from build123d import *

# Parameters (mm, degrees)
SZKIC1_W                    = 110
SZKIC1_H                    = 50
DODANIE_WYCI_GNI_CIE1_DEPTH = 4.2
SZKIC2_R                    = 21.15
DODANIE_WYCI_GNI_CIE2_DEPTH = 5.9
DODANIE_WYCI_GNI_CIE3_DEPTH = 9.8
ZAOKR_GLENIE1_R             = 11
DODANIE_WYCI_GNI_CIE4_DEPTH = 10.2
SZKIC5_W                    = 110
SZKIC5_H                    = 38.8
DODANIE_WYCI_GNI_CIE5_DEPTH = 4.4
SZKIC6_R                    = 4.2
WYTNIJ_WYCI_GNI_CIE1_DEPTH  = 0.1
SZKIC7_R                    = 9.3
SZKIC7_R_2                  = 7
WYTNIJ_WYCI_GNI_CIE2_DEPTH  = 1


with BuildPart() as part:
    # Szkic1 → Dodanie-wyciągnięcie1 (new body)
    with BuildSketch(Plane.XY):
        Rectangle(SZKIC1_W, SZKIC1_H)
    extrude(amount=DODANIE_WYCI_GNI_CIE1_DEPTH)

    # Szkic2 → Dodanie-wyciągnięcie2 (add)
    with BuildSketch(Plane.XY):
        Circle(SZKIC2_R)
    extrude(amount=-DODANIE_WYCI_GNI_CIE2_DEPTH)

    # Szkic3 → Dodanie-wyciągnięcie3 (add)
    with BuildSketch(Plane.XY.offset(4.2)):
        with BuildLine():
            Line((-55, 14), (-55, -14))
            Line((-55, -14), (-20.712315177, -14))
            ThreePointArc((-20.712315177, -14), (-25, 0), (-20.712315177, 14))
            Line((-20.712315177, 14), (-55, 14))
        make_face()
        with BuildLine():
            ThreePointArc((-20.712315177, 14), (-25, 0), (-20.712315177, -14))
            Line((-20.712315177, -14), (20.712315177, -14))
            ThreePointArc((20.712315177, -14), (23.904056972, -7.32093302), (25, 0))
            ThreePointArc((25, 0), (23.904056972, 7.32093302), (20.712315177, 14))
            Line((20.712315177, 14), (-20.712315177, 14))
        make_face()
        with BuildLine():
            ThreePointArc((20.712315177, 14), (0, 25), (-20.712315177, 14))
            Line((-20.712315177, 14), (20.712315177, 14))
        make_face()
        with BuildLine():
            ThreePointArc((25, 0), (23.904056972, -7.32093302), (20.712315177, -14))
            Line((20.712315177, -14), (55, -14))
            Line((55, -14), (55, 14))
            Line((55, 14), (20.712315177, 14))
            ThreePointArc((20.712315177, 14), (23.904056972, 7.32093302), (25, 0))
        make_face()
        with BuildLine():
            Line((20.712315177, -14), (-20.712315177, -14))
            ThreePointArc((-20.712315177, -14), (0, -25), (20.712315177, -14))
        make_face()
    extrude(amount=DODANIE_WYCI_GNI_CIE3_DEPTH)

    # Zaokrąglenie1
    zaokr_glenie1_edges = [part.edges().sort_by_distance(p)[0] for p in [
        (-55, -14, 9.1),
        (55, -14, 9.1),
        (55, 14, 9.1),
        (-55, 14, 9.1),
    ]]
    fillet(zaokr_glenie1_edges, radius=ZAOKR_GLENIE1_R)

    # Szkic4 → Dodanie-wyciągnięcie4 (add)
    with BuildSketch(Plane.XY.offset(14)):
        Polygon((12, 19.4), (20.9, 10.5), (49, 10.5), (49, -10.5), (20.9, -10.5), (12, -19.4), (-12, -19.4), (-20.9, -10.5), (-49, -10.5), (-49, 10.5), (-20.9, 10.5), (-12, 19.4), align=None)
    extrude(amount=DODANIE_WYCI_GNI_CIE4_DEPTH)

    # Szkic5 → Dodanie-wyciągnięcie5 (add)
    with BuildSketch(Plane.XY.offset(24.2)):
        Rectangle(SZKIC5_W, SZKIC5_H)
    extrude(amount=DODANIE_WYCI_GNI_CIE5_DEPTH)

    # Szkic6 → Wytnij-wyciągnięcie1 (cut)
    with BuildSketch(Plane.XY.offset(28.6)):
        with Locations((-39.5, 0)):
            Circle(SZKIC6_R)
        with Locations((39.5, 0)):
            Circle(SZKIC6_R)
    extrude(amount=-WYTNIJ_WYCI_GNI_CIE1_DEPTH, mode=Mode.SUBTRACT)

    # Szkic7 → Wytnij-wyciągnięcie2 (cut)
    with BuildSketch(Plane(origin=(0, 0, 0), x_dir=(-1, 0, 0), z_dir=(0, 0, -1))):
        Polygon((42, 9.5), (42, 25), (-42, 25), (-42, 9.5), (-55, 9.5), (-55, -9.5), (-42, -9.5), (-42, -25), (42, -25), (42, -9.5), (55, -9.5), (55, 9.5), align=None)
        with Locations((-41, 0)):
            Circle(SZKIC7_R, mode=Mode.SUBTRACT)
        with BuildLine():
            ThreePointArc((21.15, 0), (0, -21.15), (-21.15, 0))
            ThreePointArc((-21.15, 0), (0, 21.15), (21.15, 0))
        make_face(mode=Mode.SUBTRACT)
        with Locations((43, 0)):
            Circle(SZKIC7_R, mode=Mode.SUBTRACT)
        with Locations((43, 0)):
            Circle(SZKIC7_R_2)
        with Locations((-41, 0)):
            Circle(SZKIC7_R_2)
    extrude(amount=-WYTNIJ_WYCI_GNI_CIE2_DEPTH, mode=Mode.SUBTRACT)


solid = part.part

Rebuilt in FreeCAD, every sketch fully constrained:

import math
import FreeCAD as App
import Part
import Sketcher
Q = App.Units.Quantity


def edges_at(feature, points):
    """Names of the edges that pass closest to the given points."""
    edges = feature.Shape.Edges
    near = lambda p: min(range(len(edges)), key=lambda i: edges[i].distToShape(Part.Vertex(*p))[0])
    return sorted({f"Edge{near(p) + 1}" for p in points})

doc = App.newDocument("Part")
params = doc.addObject("Spreadsheet::Sheet", "Params")
for row, (alias, value) in enumerate([
    ("sketch1_width", "110 mm"),
    ("sketch1_height", "50 mm"),
    ("pad1_length", "4.2 mm"),
    ("sketch2_diameter", "42.3 mm"),
    ("pad2_length", "5.9 mm"),
    ("sketch3_radius", "25 mm"),
    ("sketch3_height", "28 mm"),
    ("pad3_length", "9.8 mm"),
    ("fillet_radius", "11 mm"),
    ("sketch4_width", "24 mm"),
    ("sketch4_height", "21 mm"),
    ("sketch4_width2", "28.1 mm"),
    ("pad4_length", "10.2 mm"),
    ("sketch5_width", "110 mm"),
    ("sketch5_height", "38.8 mm"),
    ("pad5_length", "4.4 mm"),
    ("sketch6_diameter", "8.4 mm"),
    ("pocket1_length", "0.1 mm"),
    ("sketch7_diameter", "14 mm"),
    ("sketch7_diameter2", "18.6 mm"),
    ("sketch7_diameter3", "42.3 mm"),
    ("sketch7_width", "84 mm"),
    ("sketch7_width2", "13 mm"),
    ("pocket2_length", "1 mm"),
], start=1):
    params.set(f"A{row}", alias)
    params.set(f"B{row}", "=" + value)
    params.setAlias(f"B{row}", alias)

body = doc.addObject("PartDesign::Body", "Body")

sketch1 = body.newObject("Sketcher::SketchObject", "Sketch")
sketch1.AttachmentSupport = (doc.getObject("XY_Plane"), [""])
sketch1.MapMode = "FlatFace"
sketch1.addGeometry(Part.LineSegment(App.Vector(-55, 25, 0), App.Vector(-55, -25, 0)), False)
sketch1.addGeometry(Part.LineSegment(App.Vector(-55, -25, 0), App.Vector(55, -25, 0)), False)
sketch1.addGeometry(Part.LineSegment(App.Vector(55, -25, 0), App.Vector(55, 25, 0)), False)
sketch1.addGeometry(Part.LineSegment(App.Vector(55, 25, 0), App.Vector(-55, 25, 0)), False)
sketch1.addConstraint(Sketcher.Constraint("Coincident", 0, 2, 1, 1))
sketch1.addConstraint(Sketcher.Constraint("Coincident", 1, 2, 2, 1))
sketch1.addConstraint(Sketcher.Constraint("Coincident", 2, 2, 3, 1))
sketch1.addConstraint(Sketcher.Constraint("Coincident", 3, 2, 0, 1))
sketch1.addConstraint(Sketcher.Constraint("Vertical", 0))
sketch1.addConstraint(Sketcher.Constraint("Horizontal", 1))
sketch1.addConstraint(Sketcher.Constraint("Vertical", 2))
sketch1.addConstraint(Sketcher.Constraint("Horizontal", 3))
sketch1.addConstraint(Sketcher.Constraint("Symmetric", 0, 2, 2, 2, -1, 1))
sketch1.addConstraint(Sketcher.Constraint("DistanceX", 1, 1, 1, 2, Q("110 mm")))
sketch1.addConstraint(Sketcher.Constraint("DistanceY", 0, 2, 0, 1, Q("50 mm")))
sketch1.setExpression("Constraints[9]", "Params.sketch1_width")
sketch1.setExpression("Constraints[10]", "Params.sketch1_height")
pad1 = body.newObject("PartDesign::Pad", "Pad")
pad1.Profile = sketch1
pad1.setExpression("Length", "Params.pad1_length")

sketch2 = body.newObject("Sketcher::SketchObject", "Sketch001")
sketch2.AttachmentSupport = (doc.getObject("XY_Plane"), [""])
sketch2.MapMode = "FlatFace"
sketch2.addGeometry(Part.Circle(App.Vector(0, 0, 0), App.Vector(0, 0, 1), 21.15), False)
sketch2.addConstraint(Sketcher.Constraint("Coincident", 0, 3, -1, 1))
sketch2.addConstraint(Sketcher.Constraint("Diameter", 0, Q("42.3 mm")))
sketch2.setExpression("Constraints[1]", "Params.sketch2_diameter")
pad2 = body.newObject("PartDesign::Pad", "Pad001")
pad2.Profile = sketch2
pad2.setExpression("Length", "Params.pad2_length")
pad2.Reversed = True

sketch3 = body.newObject("Sketcher::SketchObject", "Sketch002")
sketch3.AttachmentSupport = (doc.getObject("XY_Plane"), [""])
sketch3.MapMode = "FlatFace"
sketch3.AttachmentOffset = App.Placement(App.Vector(0, 0, 4.2), App.Rotation())
sketch3.addGeometry(Part.LineSegment(App.Vector(-55, 14, 0), App.Vector(-55, -14, 0)), False)
sketch3.addGeometry(Part.LineSegment(App.Vector(-55, -14, 0), App.Vector(-20.712315, -14, 0)), False)
sketch3.addGeometry(Part.ArcOfCircle(Part.Circle(App.Vector(0, 0, 0), App.Vector(0, 0, 1), 25), math.radians(-145.944202), math.radians(-34.055798)), False)
sketch3.addGeometry(Part.LineSegment(App.Vector(20.712315, -14, 0), App.Vector(55, -14, 0)), False)
sketch3.addGeometry(Part.LineSegment(App.Vector(55, -14, 0), App.Vector(55, 14, 0)), False)
sketch3.addGeometry(Part.LineSegment(App.Vector(55, 14, 0), App.Vector(20.712315, 14, 0)), False)
sketch3.addGeometry(Part.ArcOfCircle(Part.Circle(App.Vector(0, 0, 0), App.Vector(0, 0, 1), 25), math.radians(34.055798), math.radians(145.944202)), False)
sketch3.addGeometry(Part.LineSegment(App.Vector(-20.712315, 14, 0), App.Vector(-55, 14, 0)), False)
sketch3.addConstraint(Sketcher.Constraint("Coincident", 0, 2, 1, 1))
sketch3.addConstraint(Sketcher.Constraint("Coincident", 1, 2, 2, 1))
sketch3.addConstraint(Sketcher.Constraint("Coincident", 2, 2, 3, 1))
sketch3.addConstraint(Sketcher.Constraint("Coincident", 3, 2, 4, 1))
sketch3.addConstraint(Sketcher.Constraint("Coincident", 4, 2, 5, 1))
sketch3.addConstraint(Sketcher.Constraint("Coincident", 5, 2, 6, 1))
sketch3.addConstraint(Sketcher.Constraint("Coincident", 6, 2, 7, 1))
sketch3.addConstraint(Sketcher.Constraint("Coincident", 7, 2, 0, 1))
sketch3.addConstraint(Sketcher.Constraint("Vertical", 0))
sketch3.addConstraint(Sketcher.Constraint("Horizontal", 1))
sketch3.addConstraint(Sketcher.Constraint("Horizontal", 3))
sketch3.addConstraint(Sketcher.Constraint("Vertical", 4))
sketch3.addConstraint(Sketcher.Constraint("Horizontal", 5))
sketch3.addConstraint(Sketcher.Constraint("Horizontal", 7))
sketch3.addConstraint(Sketcher.Constraint("Coincident", 2, 3, -1, 1))
sketch3.addConstraint(Sketcher.Constraint("Coincident", 6, 3, -1, 1))
sketch3.addConstraint(Sketcher.Constraint("Equal", 2, 6))
sketch3.addConstraint(Sketcher.Constraint("Symmetric", 0, 2, 4, 2, -1, 1))
sketch3.addConstraint(Sketcher.Constraint("Horizontal", 1, 2, 2, 2))
sketch3.addConstraint(Sketcher.Constraint("Horizontal", 5, 2, 6, 2))
sketch3.addConstraint(Sketcher.Constraint("Radius", 2, Q("25 mm")))
sketch3.addConstraint(Sketcher.Constraint("DistanceY", 0, 2, 0, 1, Q("28 mm")))
sketch3.addConstraint(Sketcher.Constraint("DistanceX", 0, 2, -1, 1, Q("55 mm")))
sketch3.setExpression("Constraints[20]", "Params.sketch3_radius")
sketch3.setExpression("Constraints[21]", "Params.sketch3_height")
pad3 = body.newObject("PartDesign::Pad", "Pad002")
pad3.Profile = sketch3
pad3.setExpression("Length", "Params.pad3_length")
doc.recompute()

fillet = body.newObject("PartDesign::Fillet", "Fillet")
fillet.Base = (pad3, edges_at(pad3, [
    (-55, -14, 9.1),
    (55, -14, 9.1),
    (55, 14, 9.1),
    (-55, 14, 9.1),
]))
fillet.setExpression("Radius", "Params.fillet_radius")

sketch4 = body.newObject("Sketcher::SketchObject", "Sketch003")
sketch4.AttachmentSupport = (doc.getObject("XY_Plane"), [""])
sketch4.MapMode = "FlatFace"
sketch4.AttachmentOffset = App.Placement(App.Vector(0, 0, 14), App.Rotation())
sketch4.addGeometry(Part.LineSegment(App.Vector(20.9, 10.5, 0), App.Vector(12, 19.4, 0)), False)
sketch4.addGeometry(Part.LineSegment(App.Vector(12, 19.4, 0), App.Vector(-12, 19.4, 0)), False)
sketch4.addGeometry(Part.LineSegment(App.Vector(-12, 19.4, 0), App.Vector(-20.9, 10.5, 0)), False)
sketch4.addGeometry(Part.LineSegment(App.Vector(-20.9, 10.5, 0), App.Vector(-49, 10.5, 0)), False)
sketch4.addGeometry(Part.LineSegment(App.Vector(-49, 10.5, 0), App.Vector(-49, -10.5, 0)), False)
sketch4.addGeometry(Part.LineSegment(App.Vector(-49, -10.5, 0), App.Vector(-20.9, -10.5, 0)), False)
sketch4.addGeometry(Part.LineSegment(App.Vector(-20.9, -10.5, 0), App.Vector(-12, -19.4, 0)), False)
sketch4.addGeometry(Part.LineSegment(App.Vector(-12, -19.4, 0), App.Vector(12, -19.4, 0)), False)
sketch4.addGeometry(Part.LineSegment(App.Vector(12, -19.4, 0), App.Vector(20.9, -10.5, 0)), False)
sketch4.addGeometry(Part.LineSegment(App.Vector(20.9, -10.5, 0), App.Vector(49, -10.5, 0)), False)
sketch4.addGeometry(Part.LineSegment(App.Vector(49, -10.5, 0), App.Vector(49, 10.5, 0)), False)
sketch4.addGeometry(Part.LineSegment(App.Vector(49, 10.5, 0), App.Vector(20.9, 10.5, 0)), False)
sketch4.addConstraint(Sketcher.Constraint("Coincident", 0, 2, 1, 1))
sketch4.addConstraint(Sketcher.Constraint("Coincident", 1, 2, 2, 1))
sketch4.addConstraint(Sketcher.Constraint("Coincident", 2, 2, 3, 1))
sketch4.addConstraint(Sketcher.Constraint("Coincident", 3, 2, 4, 1))
sketch4.addConstraint(Sketcher.Constraint("Coincident", 4, 2, 5, 1))
sketch4.addConstraint(Sketcher.Constraint("Coincident", 5, 2, 6, 1))
sketch4.addConstraint(Sketcher.Constraint("Coincident", 6, 2, 7, 1))
sketch4.addConstraint(Sketcher.Constraint("Coincident", 7, 2, 8, 1))
sketch4.addConstraint(Sketcher.Constraint("Coincident", 8, 2, 9, 1))
sketch4.addConstraint(Sketcher.Constraint("Coincident", 9, 2, 10, 1))
sketch4.addConstraint(Sketcher.Constraint("Coincident", 10, 2, 11, 1))
sketch4.addConstraint(Sketcher.Constraint("Coincident", 11, 2, 0, 1))
sketch4.addConstraint(Sketcher.Constraint("Horizontal", 1))
sketch4.addConstraint(Sketcher.Constraint("Horizontal", 3))
sketch4.addConstraint(Sketcher.Constraint("Vertical", 4))
sketch4.addConstraint(Sketcher.Constraint("Horizontal", 5))
sketch4.addConstraint(Sketcher.Constraint("Horizontal", 7))
sketch4.addConstraint(Sketcher.Constraint("Horizontal", 9))
sketch4.addConstraint(Sketcher.Constraint("Vertical", 10))
sketch4.addConstraint(Sketcher.Constraint("Horizontal", 11))
sketch4.addConstraint(Sketcher.Constraint("Symmetric", 0, 2, 6, 2, -1, 1))
sketch4.addConstraint(Sketcher.Constraint("Symmetric", 2, 2, 8, 2, -1, 1))
sketch4.addConstraint(Sketcher.Constraint("Symmetric", 4, 2, 10, 2, -1, 1))
sketch4.addConstraint(Sketcher.Constraint("Symmetric", 5, 2, 8, 2, -2))
sketch4.addConstraint(Sketcher.Constraint("Perpendicular", 0, 2))
sketch4.addConstraint(Sketcher.Constraint("Perpendicular", 2, 6))
sketch4.addConstraint(Sketcher.Constraint("Perpendicular", 6, 8))
sketch4.addConstraint(Sketcher.Constraint("Vertical", 1, 2, 6, 2))
sketch4.addConstraint(Sketcher.Constraint("DistanceX", 1, 2, 1, 1, Q("24 mm")))
sketch4.addConstraint(Sketcher.Constraint("DistanceY", 4, 2, 4, 1, Q("21 mm")))
sketch4.addConstraint(Sketcher.Constraint("DistanceX", 3, 2, 3, 1, Q("28.1 mm")))
sketch4.addConstraint(Sketcher.Constraint("DistanceX", 3, 2, -1, 1, Q("49 mm")))
sketch4.setExpression("Constraints[28]", "Params.sketch4_width")
sketch4.setExpression("Constraints[29]", "Params.sketch4_height")
sketch4.setExpression("Constraints[30]", "Params.sketch4_width2")
pad4 = body.newObject("PartDesign::Pad", "Pad003")
pad4.Profile = sketch4
pad4.setExpression("Length", "Params.pad4_length")

sketch5 = body.newObject("Sketcher::SketchObject", "Sketch004")
sketch5.AttachmentSupport = (doc.getObject("XY_Plane"), [""])
sketch5.MapMode = "FlatFace"
sketch5.AttachmentOffset = App.Placement(App.Vector(0, 0, 24.2), App.Rotation())
sketch5.addGeometry(Part.LineSegment(App.Vector(-55, 19.4, 0), App.Vector(-55, -19.4, 0)), False)
sketch5.addGeometry(Part.LineSegment(App.Vector(-55, -19.4, 0), App.Vector(55, -19.4, 0)), False)
sketch5.addGeometry(Part.LineSegment(App.Vector(55, -19.4, 0), App.Vector(55, 19.4, 0)), False)
sketch5.addGeometry(Part.LineSegment(App.Vector(55, 19.4, 0), App.Vector(-55, 19.4, 0)), False)
sketch5.addConstraint(Sketcher.Constraint("Coincident", 0, 2, 1, 1))
sketch5.addConstraint(Sketcher.Constraint("Coincident", 1, 2, 2, 1))
sketch5.addConstraint(Sketcher.Constraint("Coincident", 2, 2, 3, 1))
sketch5.addConstraint(Sketcher.Constraint("Coincident", 3, 2, 0, 1))
sketch5.addConstraint(Sketcher.Constraint("Vertical", 0))
sketch5.addConstraint(Sketcher.Constraint("Horizontal", 1))
sketch5.addConstraint(Sketcher.Constraint("Vertical", 2))
sketch5.addConstraint(Sketcher.Constraint("Horizontal", 3))
sketch5.addConstraint(Sketcher.Constraint("Symmetric", 0, 2, 2, 2, -1, 1))
sketch5.addConstraint(Sketcher.Constraint("DistanceX", 1, 1, 1, 2, Q("110 mm")))
sketch5.addConstraint(Sketcher.Constraint("DistanceY", 0, 2, 0, 1, Q("38.8 mm")))
sketch5.setExpression("Constraints[9]", "Params.sketch5_width")
sketch5.setExpression("Constraints[10]", "Params.sketch5_height")
pad5 = body.newObject("PartDesign::Pad", "Pad004")
pad5.Profile = sketch5
pad5.setExpression("Length", "Params.pad5_length")

sketch6 = body.newObject("Sketcher::SketchObject", "Sketch005")
sketch6.AttachmentSupport = (doc.getObject("XY_Plane"), [""])
sketch6.MapMode = "FlatFace"
sketch6.AttachmentOffset = App.Placement(App.Vector(0, 0, 28.6), App.Rotation())
sketch6.addGeometry(Part.Circle(App.Vector(-39.5, 0, 0), App.Vector(0, 0, 1), 4.2), False)
sketch6.addGeometry(Part.Circle(App.Vector(39.5, 0, 0), App.Vector(0, 0, 1), 4.2), False)
sketch6.addConstraint(Sketcher.Constraint("Equal", 0, 1))
sketch6.addConstraint(Sketcher.Constraint("Symmetric", 0, 3, 1, 3, -1, 1))
sketch6.addConstraint(Sketcher.Constraint("PointOnObject", 0, 3, -1))
sketch6.addConstraint(Sketcher.Constraint("Diameter", 0, Q("8.4 mm")))
sketch6.addConstraint(Sketcher.Constraint("DistanceX", 0, 3, 1, 3, Q("79 mm")))
sketch6.setExpression("Constraints[3]", "Params.sketch6_diameter")
pocket1 = body.newObject("PartDesign::Pocket", "Pocket")
pocket1.Profile = sketch6
pocket1.setExpression("Length", "Params.pocket1_length")

sketch7 = body.newObject("Sketcher::SketchObject", "Sketch006")
sketch7.AttachmentSupport = (doc.getObject("XY_Plane"), [""])
sketch7.MapMode = "FlatFace"
sketch7.addGeometry(Part.LineSegment(App.Vector(-42, 9.5, 0), App.Vector(-42, 25, 0)), False)
sketch7.addGeometry(Part.LineSegment(App.Vector(-42, 25, 0), App.Vector(42, 25, 0)), False)
sketch7.addGeometry(Part.LineSegment(App.Vector(42, 25, 0), App.Vector(42, 9.5, 0)), False)
sketch7.addGeometry(Part.LineSegment(App.Vector(42, 9.5, 0), App.Vector(55, 9.5, 0)), False)
sketch7.addGeometry(Part.LineSegment(App.Vector(55, 9.5, 0), App.Vector(55, -9.5, 0)), False)
sketch7.addGeometry(Part.LineSegment(App.Vector(55, -9.5, 0), App.Vector(42, -9.5, 0)), False)
sketch7.addGeometry(Part.LineSegment(App.Vector(42, -9.5, 0), App.Vector(42, -25, 0)), False)
sketch7.addGeometry(Part.LineSegment(App.Vector(42, -25, 0), App.Vector(-42, -25, 0)), False)
sketch7.addGeometry(Part.LineSegment(App.Vector(-42, -25, 0), App.Vector(-42, -9.5, 0)), False)
sketch7.addGeometry(Part.LineSegment(App.Vector(-42, -9.5, 0), App.Vector(-55, -9.5, 0)), False)
sketch7.addGeometry(Part.LineSegment(App.Vector(-55, -9.5, 0), App.Vector(-55, 9.5, 0)), False)
sketch7.addGeometry(Part.LineSegment(App.Vector(-55, 9.5, 0), App.Vector(-42, 9.5, 0)), False)
sketch7.addGeometry(Part.Circle(App.Vector(41, 0, 0), App.Vector(0, 0, 1), 9.3), False)
sketch7.addGeometry(Part.Circle(App.Vector(0, 0, 0), App.Vector(0, 0, 1), 21.15), False)
sketch7.addGeometry(Part.Circle(App.Vector(-43, 0, 0), App.Vector(0, 0, 1), 9.3), False)
sketch7.addGeometry(Part.Circle(App.Vector(-43, 0, 0), App.Vector(0, 0, 1), 7), False)
sketch7.addGeometry(Part.Circle(App.Vector(41, 0, 0), App.Vector(0, 0, 1), 7), False)
sketch7.addConstraint(Sketcher.Constraint("Coincident", 0, 2, 1, 1))
sketch7.addConstraint(Sketcher.Constraint("Coincident", 1, 2, 2, 1))
sketch7.addConstraint(Sketcher.Constraint("Coincident", 2, 2, 3, 1))
sketch7.addConstraint(Sketcher.Constraint("Coincident", 3, 2, 4, 1))
sketch7.addConstraint(Sketcher.Constraint("Coincident", 4, 2, 5, 1))
sketch7.addConstraint(Sketcher.Constraint("Coincident", 5, 2, 6, 1))
sketch7.addConstraint(Sketcher.Constraint("Coincident", 6, 2, 7, 1))
sketch7.addConstraint(Sketcher.Constraint("Coincident", 7, 2, 8, 1))
sketch7.addConstraint(Sketcher.Constraint("Coincident", 8, 2, 9, 1))
sketch7.addConstraint(Sketcher.Constraint("Coincident", 9, 2, 10, 1))
sketch7.addConstraint(Sketcher.Constraint("Coincident", 10, 2, 11, 1))
sketch7.addConstraint(Sketcher.Constraint("Coincident", 11, 2, 0, 1))
sketch7.addConstraint(Sketcher.Constraint("Vertical", 0))
sketch7.addConstraint(Sketcher.Constraint("Horizontal", 1))
sketch7.addConstraint(Sketcher.Constraint("Vertical", 2))
sketch7.addConstraint(Sketcher.Constraint("Horizontal", 3))
sketch7.addConstraint(Sketcher.Constraint("Vertical", 4))
sketch7.addConstraint(Sketcher.Constraint("Horizontal", 5))
sketch7.addConstraint(Sketcher.Constraint("Vertical", 6))
sketch7.addConstraint(Sketcher.Constraint("Horizontal", 7))
sketch7.addConstraint(Sketcher.Constraint("Vertical", 8))
sketch7.addConstraint(Sketcher.Constraint("Horizontal", 9))
sketch7.addConstraint(Sketcher.Constraint("Vertical", 10))
sketch7.addConstraint(Sketcher.Constraint("Horizontal", 11))
sketch7.addConstraint(Sketcher.Constraint("Coincident", 13, 3, -1, 1))
sketch7.addConstraint(Sketcher.Constraint("Coincident", 15, 3, 14, 3))
sketch7.addConstraint(Sketcher.Constraint("Coincident", 16, 3, 12, 3))
sketch7.addConstraint(Sketcher.Constraint("Equal", 12, 14))
sketch7.addConstraint(Sketcher.Constraint("Equal", 15, 16))
sketch7.addConstraint(Sketcher.Constraint("Symmetric", 0, 2, 6, 2, -1, 1))
sketch7.addConstraint(Sketcher.Constraint("Symmetric", 2, 2, 8, 2, -1, 1))
sketch7.addConstraint(Sketcher.Constraint("Symmetric", 4, 2, 10, 2, -1, 1))
sketch7.addConstraint(Sketcher.Constraint("Symmetric", 5, 2, 8, 2, -2))
sketch7.addConstraint(Sketcher.Constraint("PointOnObject", 12, 3, -1))
sketch7.addConstraint(Sketcher.Constraint("PointOnObject", 14, 3, -1))
sketch7.addConstraint(Sketcher.Constraint("Diameter", 15, Q("14 mm")))
sketch7.addConstraint(Sketcher.Constraint("Diameter", 12, Q("18.6 mm")))
sketch7.addConstraint(Sketcher.Constraint("Diameter", 13, Q("42.3 mm")))
sketch7.addConstraint(Sketcher.Constraint("DistanceX", 1, 1, 1, 2, Q("84 mm")))
sketch7.addConstraint(Sketcher.Constraint("DistanceX", 3, 1, 3, 2, Q("13 mm")))
sketch7.addConstraint(Sketcher.Constraint("DistanceY", 4, 2, 4, 1, Q("19 mm")))
sketch7.addConstraint(Sketcher.Constraint("DistanceY", 0, 1, 0, 2, Q("15.5 mm")))
sketch7.addConstraint(Sketcher.Constraint("DistanceX", -1, 1, 12, 3, Q("41 mm")))
sketch7.addConstraint(Sketcher.Constraint("DistanceX", 14, 3, -1, 1, Q("43 mm")))
sketch7.setExpression("Constraints[35]", "Params.sketch7_diameter")
sketch7.setExpression("Constraints[36]", "Params.sketch7_diameter2")
sketch7.setExpression("Constraints[37]", "Params.sketch7_diameter3")
sketch7.setExpression("Constraints[38]", "Params.sketch7_width")
sketch7.setExpression("Constraints[39]", "Params.sketch7_width2")
pocket2 = body.newObject("PartDesign::Pocket", "Pocket001")
pocket2.Profile = sketch7
pocket2.setExpression("Length", "Params.pocket2_length")
pocket2.Reversed = True

doc.recompute()
